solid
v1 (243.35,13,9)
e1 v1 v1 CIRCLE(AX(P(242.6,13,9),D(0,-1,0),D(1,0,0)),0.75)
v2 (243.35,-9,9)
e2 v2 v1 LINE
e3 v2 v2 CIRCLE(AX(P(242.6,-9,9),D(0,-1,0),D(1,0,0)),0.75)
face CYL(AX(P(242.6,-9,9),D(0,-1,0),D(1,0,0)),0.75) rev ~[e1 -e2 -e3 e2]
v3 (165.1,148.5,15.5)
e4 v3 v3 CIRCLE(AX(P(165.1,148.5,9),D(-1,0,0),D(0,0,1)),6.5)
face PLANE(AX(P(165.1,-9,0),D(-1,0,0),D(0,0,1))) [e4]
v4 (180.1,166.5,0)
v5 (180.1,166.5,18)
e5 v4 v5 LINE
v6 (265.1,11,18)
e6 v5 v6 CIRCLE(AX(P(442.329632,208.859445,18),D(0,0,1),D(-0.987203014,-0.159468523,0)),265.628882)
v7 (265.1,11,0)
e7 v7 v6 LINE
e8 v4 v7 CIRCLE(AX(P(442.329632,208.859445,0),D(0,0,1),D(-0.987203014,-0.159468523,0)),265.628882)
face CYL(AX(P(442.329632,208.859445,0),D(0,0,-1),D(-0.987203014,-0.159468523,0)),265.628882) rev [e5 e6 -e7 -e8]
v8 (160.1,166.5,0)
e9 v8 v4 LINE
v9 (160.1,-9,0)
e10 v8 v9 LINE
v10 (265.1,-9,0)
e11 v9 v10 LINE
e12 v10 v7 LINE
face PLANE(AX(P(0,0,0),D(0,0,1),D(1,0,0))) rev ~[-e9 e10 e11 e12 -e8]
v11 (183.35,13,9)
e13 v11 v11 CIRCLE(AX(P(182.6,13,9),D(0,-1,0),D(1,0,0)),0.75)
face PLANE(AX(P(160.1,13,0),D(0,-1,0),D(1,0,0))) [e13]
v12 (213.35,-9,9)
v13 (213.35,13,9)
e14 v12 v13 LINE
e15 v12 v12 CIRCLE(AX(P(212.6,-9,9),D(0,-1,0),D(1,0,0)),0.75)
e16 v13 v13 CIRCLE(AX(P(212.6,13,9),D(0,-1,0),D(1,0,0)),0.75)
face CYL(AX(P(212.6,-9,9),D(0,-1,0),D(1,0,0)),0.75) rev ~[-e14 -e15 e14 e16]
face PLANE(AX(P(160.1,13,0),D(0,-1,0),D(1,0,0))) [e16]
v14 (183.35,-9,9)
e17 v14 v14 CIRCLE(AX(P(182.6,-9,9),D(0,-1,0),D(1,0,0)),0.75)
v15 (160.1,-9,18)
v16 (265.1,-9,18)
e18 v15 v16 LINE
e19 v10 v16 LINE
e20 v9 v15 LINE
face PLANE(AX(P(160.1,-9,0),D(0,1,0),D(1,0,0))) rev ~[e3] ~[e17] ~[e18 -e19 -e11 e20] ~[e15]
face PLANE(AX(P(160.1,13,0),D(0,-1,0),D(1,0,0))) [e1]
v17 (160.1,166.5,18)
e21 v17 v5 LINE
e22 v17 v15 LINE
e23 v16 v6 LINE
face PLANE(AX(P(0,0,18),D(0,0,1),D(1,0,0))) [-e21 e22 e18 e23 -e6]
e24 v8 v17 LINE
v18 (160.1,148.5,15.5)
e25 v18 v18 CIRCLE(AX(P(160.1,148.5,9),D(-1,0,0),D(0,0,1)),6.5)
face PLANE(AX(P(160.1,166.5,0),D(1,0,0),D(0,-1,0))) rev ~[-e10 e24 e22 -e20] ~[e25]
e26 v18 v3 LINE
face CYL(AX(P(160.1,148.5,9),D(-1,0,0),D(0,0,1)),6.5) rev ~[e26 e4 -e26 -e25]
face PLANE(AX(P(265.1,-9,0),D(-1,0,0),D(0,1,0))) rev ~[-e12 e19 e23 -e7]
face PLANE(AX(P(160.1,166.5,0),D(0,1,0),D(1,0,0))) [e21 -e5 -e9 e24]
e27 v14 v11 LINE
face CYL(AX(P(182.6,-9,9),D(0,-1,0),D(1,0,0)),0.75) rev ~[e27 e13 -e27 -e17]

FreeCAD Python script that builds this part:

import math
import FreeCAD as App
import Part
import Sketcher
from FreeCAD import Vector
Q = App.Units.Quantity

doc = App.newDocument("Part")
body = doc.addObject("PartDesign::Body", "Body")

# Sketch on XY plane
sketch1 = doc.addObject("Sketcher::SketchObject", "Sketch")
body.addObject(sketch1)
sketch1.AttachmentSupport = (doc.XY_Plane, [""])
sketch1.MapMode = "FlatFace"
sketch1.addGeometry([
    Part.LineSegment(Vector(180, 166, 0), Vector(160, 166, 0)),  # 0
    Part.LineSegment(Vector(160, 166, 0), Vector(160, -9, 0)),  # 1
    Part.LineSegment(Vector(160, -9, 0), Vector(265, -9, 0)),  # 2
    Part.LineSegment(Vector(265, -9, 0), Vector(265, 11, 0)),  # 3
    Part.ArcOfCircle(Part.Circle(Vector(442, 209, 0), Vector(0, 0, 1), 266), math.radians(-171), math.radians(-132)),  # 4
], False)
sketch1.addConstraint([
    Sketcher.Constraint("Coincident", 0, 2, 1, 1),
    Sketcher.Constraint("Coincident", 1, 2, 2, 1),
    Sketcher.Constraint("Coincident", 2, 2, 3, 1),
    Sketcher.Constraint("Coincident", 3, 2, 4, 2),
    Sketcher.Constraint("Coincident", 4, 1, 0, 1),
    Sketcher.Constraint("Horizontal", 0),
    Sketcher.Constraint("Vertical", 1),
    Sketcher.Constraint("Horizontal", 2),
    Sketcher.Constraint("Vertical", 3),
    Sketcher.Constraint("Equal", 0, 3),
    Sketcher.Constraint("DistanceX", 0, 2, 0, 1, Q("20 mm")),
    Sketcher.Constraint("DistanceX", 2, 1, 2, 2, Q("105 mm")),
    Sketcher.Constraint("DistanceY", 1, 2, 1, 1, Q("175.5 mm")),
    Sketcher.Constraint("DistanceY", 1, 2, -1, 1, Q("9 mm")),
    Sketcher.Constraint("DistanceX", -1, 1, 0, 2, Q("160.1 mm")),
    Sketcher.Constraint("Radius", 4, Q("265.6287 mm")),
])
pad1 = doc.addObject("PartDesign::Pad", "Pad")
body.addObject(pad1)
pad1.Profile = sketch1
pad1.Length = 18

# Sketch on YZ plane
sketch2 = doc.addObject("Sketcher::SketchObject", "Sketch001")
body.addObject(sketch2)
sketch2.AttachmentSupport = (doc.YZ_Plane, [""])
sketch2.MapMode = "FlatFace"
sketch2.AttachmentOffset = App.Placement(Vector(0, 0, 160.1), App.Rotation())
sketch2.addGeometry(Part.Circle(Vector(148, 9, 0), Vector(0, 0, 1), 6), False)
sketch2.addConstraint([
    Sketcher.Constraint("Diameter", 0, Q("13 mm")),
    Sketcher.Constraint("DistanceY", -1, 1, 0, 3, Q("9 mm")),
    Sketcher.Constraint("DistanceX", -1, 1, 0, 3, Q("148.5 mm")),
])
pocket1 = doc.addObject("PartDesign::Pocket", "Pocket")
body.addObject(pocket1)
pocket1.Profile = sketch2
pocket1.Length = 5
pocket1.Reversed = True

# Sketch on XZ plane
sketch3 = doc.addObject("Sketcher::SketchObject", "Sketch002")
body.addObject(sketch3)
sketch3.AttachmentSupport = (doc.XZ_Plane, [""])
sketch3.MapMode = "FlatFace"
sketch3.AttachmentOffset = App.Placement(Vector(0, 0, 9), App.Rotation())
sketch3.addGeometry([
    Part.Circle(Vector(182.6, 9, 0), Vector(0, 0, 1), 0.8),
    Part.Circle(Vector(212.6, 9, 0), Vector(0, 0, 1), 0.8),
    Part.Circle(Vector(242.6, 9, 0), Vector(0, 0, 1), 0.8),
], False)
sketch3.addConstraint([
    Sketcher.Constraint("Equal", 0, 1),
    Sketcher.Constraint("Equal", 1, 2),
    Sketcher.Constraint("Horizontal", 0, 3, 1, 3),
    Sketcher.Constraint("Horizontal", 1, 3, 2, 3),
    Sketcher.Constraint("Diameter", 0, Q("1.5 mm")),
    Sketcher.Constraint("DistanceX", 0, 3, 1, 3, Q("30 mm")),
    Sketcher.Constraint("DistanceX", 1, 3, 2, 3, Q("30 mm")),
    Sketcher.Constraint("DistanceY", -1, 1, 0, 3, Q("9 mm")),
    Sketcher.Constraint("DistanceX", -1, 1, 0, 3, Q("182.6 mm")),
])
pocket2 = doc.addObject("PartDesign::Pocket", "Pocket001")
body.addObject(pocket2)
pocket2.Profile = sketch3
pocket2.Length = 22

doc.recompute()
